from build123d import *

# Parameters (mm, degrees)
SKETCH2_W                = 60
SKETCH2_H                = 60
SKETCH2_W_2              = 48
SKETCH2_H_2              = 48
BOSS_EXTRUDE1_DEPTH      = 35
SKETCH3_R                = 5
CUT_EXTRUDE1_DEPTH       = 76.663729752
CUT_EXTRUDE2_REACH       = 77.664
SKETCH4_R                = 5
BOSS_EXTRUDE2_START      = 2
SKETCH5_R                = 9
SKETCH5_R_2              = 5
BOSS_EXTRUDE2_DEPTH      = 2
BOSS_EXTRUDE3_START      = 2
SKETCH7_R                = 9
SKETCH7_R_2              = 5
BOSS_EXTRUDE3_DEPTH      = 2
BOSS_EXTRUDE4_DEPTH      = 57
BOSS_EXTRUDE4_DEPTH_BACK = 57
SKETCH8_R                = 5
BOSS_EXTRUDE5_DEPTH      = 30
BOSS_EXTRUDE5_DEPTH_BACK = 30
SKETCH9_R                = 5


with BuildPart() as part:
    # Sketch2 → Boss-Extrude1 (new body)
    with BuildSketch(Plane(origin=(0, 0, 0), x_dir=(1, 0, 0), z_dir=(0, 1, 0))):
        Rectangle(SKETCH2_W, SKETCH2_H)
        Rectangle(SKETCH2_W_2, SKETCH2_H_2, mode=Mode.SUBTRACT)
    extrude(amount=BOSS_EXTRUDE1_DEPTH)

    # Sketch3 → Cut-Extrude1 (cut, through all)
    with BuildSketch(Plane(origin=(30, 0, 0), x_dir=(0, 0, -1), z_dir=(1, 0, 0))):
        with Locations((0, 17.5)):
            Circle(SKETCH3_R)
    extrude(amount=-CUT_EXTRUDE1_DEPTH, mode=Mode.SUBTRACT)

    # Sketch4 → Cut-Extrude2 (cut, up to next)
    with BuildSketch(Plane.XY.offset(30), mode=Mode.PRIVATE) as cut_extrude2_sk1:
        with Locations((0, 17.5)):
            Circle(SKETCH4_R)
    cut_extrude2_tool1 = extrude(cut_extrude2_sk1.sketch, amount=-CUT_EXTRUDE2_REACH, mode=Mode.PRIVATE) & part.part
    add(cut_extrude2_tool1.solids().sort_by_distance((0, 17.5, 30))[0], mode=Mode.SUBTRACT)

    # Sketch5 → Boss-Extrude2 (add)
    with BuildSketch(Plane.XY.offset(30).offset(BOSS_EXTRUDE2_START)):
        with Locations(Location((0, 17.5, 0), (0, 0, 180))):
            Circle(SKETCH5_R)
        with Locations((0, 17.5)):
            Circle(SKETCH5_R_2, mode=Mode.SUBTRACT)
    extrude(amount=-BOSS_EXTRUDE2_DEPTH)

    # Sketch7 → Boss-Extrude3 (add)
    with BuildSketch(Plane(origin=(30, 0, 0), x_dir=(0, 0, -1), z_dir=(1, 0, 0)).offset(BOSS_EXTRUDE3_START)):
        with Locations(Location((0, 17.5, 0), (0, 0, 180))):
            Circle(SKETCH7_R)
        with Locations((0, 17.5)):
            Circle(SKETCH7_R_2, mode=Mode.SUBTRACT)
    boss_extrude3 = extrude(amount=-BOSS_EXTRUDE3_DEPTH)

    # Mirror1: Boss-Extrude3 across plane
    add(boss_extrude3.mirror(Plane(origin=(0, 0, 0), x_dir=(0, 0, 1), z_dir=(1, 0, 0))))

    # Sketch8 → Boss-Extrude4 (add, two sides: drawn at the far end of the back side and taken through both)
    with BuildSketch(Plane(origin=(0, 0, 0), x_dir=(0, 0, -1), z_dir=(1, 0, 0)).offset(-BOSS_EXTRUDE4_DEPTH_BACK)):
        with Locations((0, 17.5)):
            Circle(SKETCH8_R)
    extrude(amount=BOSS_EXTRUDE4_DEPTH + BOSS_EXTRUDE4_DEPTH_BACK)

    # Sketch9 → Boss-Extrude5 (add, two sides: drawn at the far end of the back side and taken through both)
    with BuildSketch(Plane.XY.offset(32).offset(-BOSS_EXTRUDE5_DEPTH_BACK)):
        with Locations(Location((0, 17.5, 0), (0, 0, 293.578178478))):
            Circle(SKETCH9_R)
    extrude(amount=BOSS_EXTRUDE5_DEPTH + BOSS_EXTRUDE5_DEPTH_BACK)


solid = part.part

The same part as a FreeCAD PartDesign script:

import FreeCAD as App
import Part
import Sketcher
Q = App.Units.Quantity

doc = App.newDocument("Part")
body = doc.addObject("PartDesign::Body", "Body")

# Sketch on XZ plane
sketch1 = doc.addObject("Sketcher::SketchObject", "Sketch")
body.addObject(sketch1)
sketch1.AttachmentSupport = (doc.XZ_Plane, [""])
sketch1.MapMode = "FlatFace"
sketch1.addGeometry(Part.LineSegment(App.Vector(-30, -30, 0), App.Vector(-30, 30, 0)), False)
sketch1.addGeometry(Part.LineSegment(App.Vector(-30, 30, 0), App.Vector(30, 30, 0)), False)
sketch1.addGeometry(Part.LineSegment(App.Vector(30, 30, 0), App.Vector(30, -30, 0)), False)
sketch1.addGeometry(Part.LineSegment(App.Vector(30, -30, 0), App.Vector(-30, -30, 0)), False)
sketch1.addGeometry(Part.LineSegment(App.Vector(24, 24, 0), App.Vector(-24, 24, 0)), False)
sketch1.addGeometry(Part.LineSegment(App.Vector(-24, 24, 0), App.Vector(-24, -24, 0)), False)
sketch1.addGeometry(Part.LineSegment(App.Vector(-24, -24, 0), App.Vector(24, -24, 0)), False)
sketch1.addGeometry(Part.LineSegment(App.Vector(24, -24, 0), App.Vector(24, 24, 0)), False)
sketch1.addConstraint(Sketcher.Constraint("Coincident", 0, 2, 1, 1))
sketch1.addConstraint(Sketcher.Constraint("Coincident", 1, 2, 2, 1))
sketch1.addConstraint(Sketcher.Constraint("Coincident", 2, 2, 3, 1))
sketch1.addConstraint(Sketcher.Constraint("Coincident", 3, 2, 0, 1))
sketch1.addConstraint(Sketcher.Constraint("Coincident", 4, 2, 5, 1))
sketch1.addConstraint(Sketcher.Constraint("Coincident", 5, 2, 6, 1))
sketch1.addConstraint(Sketcher.Constraint("Coincident", 6, 2, 7, 1))
sketch1.addConstraint(Sketcher.Constraint("Coincident", 7, 2, 4, 1))
sketch1.addConstraint(Sketcher.Constraint("Vertical", 0))
sketch1.addConstraint(Sketcher.Constraint("Horizontal", 1))
sketch1.addConstraint(Sketcher.Constraint("Vertical", 2))
sketch1.addConstraint(Sketcher.Constraint("Horizontal", 3))
sketch1.addConstraint(Sketcher.Constraint("Horizontal", 4))
sketch1.addConstraint(Sketcher.Constraint("Vertical", 5))
sketch1.addConstraint(Sketcher.Constraint("Horizontal", 6))
sketch1.addConstraint(Sketcher.Constraint("Vertical", 7))
sketch1.addConstraint(Sketcher.Constraint("Symmetric", 0, 2, 2, 2, -1, 1))
sketch1.addConstraint(Sketcher.Constraint("Symmetric", 4, 2, 6, 2, -1, 1))
sketch1.addConstraint(Sketcher.Constraint("Equal", 3, 0))
sketch1.addConstraint(Sketcher.Constraint("Equal", 6, 5))
sketch1.addConstraint(Sketcher.Constraint("DistanceX", 1, 1, 1, 2, Q("60 mm")))
sketch1.addConstraint(Sketcher.Constraint("DistanceX", 4, 2, 4, 1, Q("48 mm")))
pad1 = doc.addObject("PartDesign::Pad", "Pad")
body.addObject(pad1)
pad1.Profile = sketch1
pad1.Length = 35
pad1.Reversed = True

# Sketch on YZ plane
sketch2 = doc.addObject("Sketcher::SketchObject", "Sketch001")
body.addObject(sketch2)
sketch2.AttachmentSupport = (doc.YZ_Plane, [""])
sketch2.MapMode = "FlatFace"
sketch2.AttachmentOffset = App.Placement(App.Vector(0, 0, 30), App.Rotation())
sketch2.addGeometry(Part.Circle(App.Vector(18, 0, 0), App.Vector(0, 0, 1), 5), False)
sketch2.addConstraint(Sketcher.Constraint("PointOnObject", 0, 3, -1))
sketch2.addConstraint(Sketcher.Constraint("Diameter", 0, Q("10 mm")))
sketch2.addConstraint(Sketcher.Constraint("DistanceX", -1, 1, 0, 3, Q("17.5 mm")))
pocket1 = doc.addObject("PartDesign::Pocket", "Pocket")
body.addObject(pocket1)
pocket1.Profile = sketch2
pocket1.Type = "ThroughAll"

# Sketch on XY plane
sketch3 = doc.addObject("Sketcher::SketchObject", "Sketch002")
body.addObject(sketch3)
sketch3.AttachmentSupport = (doc.XY_Plane, [""])
sketch3.MapMode = "FlatFace"
sketch3.AttachmentOffset = App.Placement(App.Vector(0, 0, 30), App.Rotation())
sketch3.addGeometry(Part.Circle(App.Vector(0, 18, 0), App.Vector(0, 0, 1), 5), False)
sketch3.addConstraint(Sketcher.Constraint("PointOnObject", 0, 3, -2))
sketch3.addConstraint(Sketcher.Constraint("Diameter", 0, Q("10 mm")))
sketch3.addConstraint(Sketcher.Constraint("DistanceY", -1, 1, 0, 3, Q("17.5 mm")))
pocket2 = doc.addObject("PartDesign::Pocket", "Pocket001")
body.addObject(pocket2)
pocket2.Profile = sketch3
pocket2.Type = "UpToFirst"

# Sketch on XY plane
sketch4 = doc.addObject("Sketcher::SketchObject", "Sketch003")
body.addObject(sketch4)
sketch4.AttachmentSupport = (doc.XY_Plane, [""])
sketch4.MapMode = "FlatFace"
sketch4.AttachmentOffset = App.Placement(App.Vector(0, 0, 32), App.Rotation())
sketch4.addGeometry(Part.Circle(App.Vector(0, 18, 0), App.Vector(0, 0, 1), 9), False)
sketch4.addGeometry(Part.Circle(App.Vector(0, 18, 0), App.Vector(0, 0, 1), 5), False)
sketch4.addConstraint(Sketcher.Constraint("Coincident", 1, 3, 0, 3))
sketch4.addConstraint(Sketcher.Constraint("PointOnObject", 0, 3, -2))
sketch4.addConstraint(Sketcher.Constraint("Diameter", 0, Q("18 mm")))
sketch4.addConstraint(Sketcher.Constraint("Diameter", 1, Q("10 mm")))
sketch4.addConstraint(Sketcher.Constraint("DistanceY", -1, 1, 0, 3, Q("17.5 mm")))
pad2 = doc.addObject("PartDesign::Pad", "Pad001")
body.addObject(pad2)
pad2.Profile = sketch4
pad2.Length = 2
pad2.Reversed = True

# Sketch on YZ plane
sketch5 = doc.addObject("Sketcher::SketchObject", "Sketch004")
body.addObject(sketch5)
sketch5.AttachmentSupport = (doc.YZ_Plane, [""])
sketch5.MapMode = "FlatFace"
sketch5.AttachmentOffset = App.Placement(App.Vector(0, 0, 32), App.Rotation())
sketch5.addGeometry(Part.Circle(App.Vector(18, 0, 0), App.Vector(0, 0, 1), 9), False)
sketch5.addGeometry(Part.Circle(App.Vector(18, 0, 0), App.Vector(0, 0, 1), 5), False)
sketch5.addConstraint(Sketcher.Constraint("Coincident", 1, 3, 0, 3))
sketch5.addConstraint(Sketcher.Constraint("PointOnObject", 0, 3, -1))
sketch5.addConstraint(Sketcher.Constraint("Diameter", 0, Q("18 mm")))
sketch5.addConstraint(Sketcher.Constraint("Diameter", 1, Q("10 mm")))
sketch5.addConstraint(Sketcher.Constraint("DistanceX", -1, 1, 0, 3, Q("17.5 mm")))
pad3 = doc.addObject("PartDesign::Pad", "Pad002")
body.addObject(pad3)
pad3.Profile = sketch5
pad3.Length = 2
pad3.Reversed = True
doc.recompute()

mirrored = doc.addObject("PartDesign::Mirrored", "Mirrored")
body.addObject(mirrored)
mirrored.Originals = [pad3]
mirrored.MirrorPlane = (doc.YZ_Plane, [""])
body.Tip = mirrored

# Sketch on YZ plane
sketch6 = doc.addObject("Sketcher::SketchObject", "Sketch005")
body.addObject(sketch6)
sketch6.AttachmentSupport = (doc.YZ_Plane, [""])
sketch6.MapMode = "FlatFace"
sketch6.addGeometry(Part.Circle(App.Vector(18, 0, 0), App.Vector(0, 0, 1), 5), False)
sketch6.addConstraint(Sketcher.Constraint("PointOnObject", 0, 3, -1))
sketch6.addConstraint(Sketcher.Constraint("Diameter", 0, Q("10 mm")))
sketch6.addConstraint(Sketcher.Constraint("DistanceX", -1, 1, 0, 3, Q("17.5 mm")))
pad4 = doc.addObject("PartDesign::Pad", "Pad003")
body.addObject(pad4)
pad4.Profile = sketch6
pad4.Type = "TwoLengths"
pad4.Length = 57
pad4.Length2 = 57

# Sketch on XY plane
sketch7 = doc.addObject("Sketcher::SketchObject", "Sketch006")
body.addObject(sketch7)
sketch7.AttachmentSupport = (doc.XY_Plane, [""])
sketch7.MapMode = "FlatFace"
sketch7.AttachmentOffset = App.Placement(App.Vector(0, 0, 32), App.Rotation())
sketch7.addGeometry(Part.Circle(App.Vector(0, 18, 0), App.Vector(0, 0, 1), 5), False)
sketch7.addConstraint(Sketcher.Constraint("PointOnObject", 0, 3, -2))
sketch7.addConstraint(Sketcher.Constraint("Diameter", 0, Q("10 mm")))
sketch7.addConstraint(Sketcher.Constraint("DistanceY", -1, 1, 0, 3, Q("17.5 mm")))
pad5 = doc.addObject("PartDesign::Pad", "Pad004")
body.addObject(pad5)
pad5.Profile = sketch7
pad5.Type = "TwoLengths"
pad5.Length = 30
pad5.Length2 = 30

doc.recompute()
